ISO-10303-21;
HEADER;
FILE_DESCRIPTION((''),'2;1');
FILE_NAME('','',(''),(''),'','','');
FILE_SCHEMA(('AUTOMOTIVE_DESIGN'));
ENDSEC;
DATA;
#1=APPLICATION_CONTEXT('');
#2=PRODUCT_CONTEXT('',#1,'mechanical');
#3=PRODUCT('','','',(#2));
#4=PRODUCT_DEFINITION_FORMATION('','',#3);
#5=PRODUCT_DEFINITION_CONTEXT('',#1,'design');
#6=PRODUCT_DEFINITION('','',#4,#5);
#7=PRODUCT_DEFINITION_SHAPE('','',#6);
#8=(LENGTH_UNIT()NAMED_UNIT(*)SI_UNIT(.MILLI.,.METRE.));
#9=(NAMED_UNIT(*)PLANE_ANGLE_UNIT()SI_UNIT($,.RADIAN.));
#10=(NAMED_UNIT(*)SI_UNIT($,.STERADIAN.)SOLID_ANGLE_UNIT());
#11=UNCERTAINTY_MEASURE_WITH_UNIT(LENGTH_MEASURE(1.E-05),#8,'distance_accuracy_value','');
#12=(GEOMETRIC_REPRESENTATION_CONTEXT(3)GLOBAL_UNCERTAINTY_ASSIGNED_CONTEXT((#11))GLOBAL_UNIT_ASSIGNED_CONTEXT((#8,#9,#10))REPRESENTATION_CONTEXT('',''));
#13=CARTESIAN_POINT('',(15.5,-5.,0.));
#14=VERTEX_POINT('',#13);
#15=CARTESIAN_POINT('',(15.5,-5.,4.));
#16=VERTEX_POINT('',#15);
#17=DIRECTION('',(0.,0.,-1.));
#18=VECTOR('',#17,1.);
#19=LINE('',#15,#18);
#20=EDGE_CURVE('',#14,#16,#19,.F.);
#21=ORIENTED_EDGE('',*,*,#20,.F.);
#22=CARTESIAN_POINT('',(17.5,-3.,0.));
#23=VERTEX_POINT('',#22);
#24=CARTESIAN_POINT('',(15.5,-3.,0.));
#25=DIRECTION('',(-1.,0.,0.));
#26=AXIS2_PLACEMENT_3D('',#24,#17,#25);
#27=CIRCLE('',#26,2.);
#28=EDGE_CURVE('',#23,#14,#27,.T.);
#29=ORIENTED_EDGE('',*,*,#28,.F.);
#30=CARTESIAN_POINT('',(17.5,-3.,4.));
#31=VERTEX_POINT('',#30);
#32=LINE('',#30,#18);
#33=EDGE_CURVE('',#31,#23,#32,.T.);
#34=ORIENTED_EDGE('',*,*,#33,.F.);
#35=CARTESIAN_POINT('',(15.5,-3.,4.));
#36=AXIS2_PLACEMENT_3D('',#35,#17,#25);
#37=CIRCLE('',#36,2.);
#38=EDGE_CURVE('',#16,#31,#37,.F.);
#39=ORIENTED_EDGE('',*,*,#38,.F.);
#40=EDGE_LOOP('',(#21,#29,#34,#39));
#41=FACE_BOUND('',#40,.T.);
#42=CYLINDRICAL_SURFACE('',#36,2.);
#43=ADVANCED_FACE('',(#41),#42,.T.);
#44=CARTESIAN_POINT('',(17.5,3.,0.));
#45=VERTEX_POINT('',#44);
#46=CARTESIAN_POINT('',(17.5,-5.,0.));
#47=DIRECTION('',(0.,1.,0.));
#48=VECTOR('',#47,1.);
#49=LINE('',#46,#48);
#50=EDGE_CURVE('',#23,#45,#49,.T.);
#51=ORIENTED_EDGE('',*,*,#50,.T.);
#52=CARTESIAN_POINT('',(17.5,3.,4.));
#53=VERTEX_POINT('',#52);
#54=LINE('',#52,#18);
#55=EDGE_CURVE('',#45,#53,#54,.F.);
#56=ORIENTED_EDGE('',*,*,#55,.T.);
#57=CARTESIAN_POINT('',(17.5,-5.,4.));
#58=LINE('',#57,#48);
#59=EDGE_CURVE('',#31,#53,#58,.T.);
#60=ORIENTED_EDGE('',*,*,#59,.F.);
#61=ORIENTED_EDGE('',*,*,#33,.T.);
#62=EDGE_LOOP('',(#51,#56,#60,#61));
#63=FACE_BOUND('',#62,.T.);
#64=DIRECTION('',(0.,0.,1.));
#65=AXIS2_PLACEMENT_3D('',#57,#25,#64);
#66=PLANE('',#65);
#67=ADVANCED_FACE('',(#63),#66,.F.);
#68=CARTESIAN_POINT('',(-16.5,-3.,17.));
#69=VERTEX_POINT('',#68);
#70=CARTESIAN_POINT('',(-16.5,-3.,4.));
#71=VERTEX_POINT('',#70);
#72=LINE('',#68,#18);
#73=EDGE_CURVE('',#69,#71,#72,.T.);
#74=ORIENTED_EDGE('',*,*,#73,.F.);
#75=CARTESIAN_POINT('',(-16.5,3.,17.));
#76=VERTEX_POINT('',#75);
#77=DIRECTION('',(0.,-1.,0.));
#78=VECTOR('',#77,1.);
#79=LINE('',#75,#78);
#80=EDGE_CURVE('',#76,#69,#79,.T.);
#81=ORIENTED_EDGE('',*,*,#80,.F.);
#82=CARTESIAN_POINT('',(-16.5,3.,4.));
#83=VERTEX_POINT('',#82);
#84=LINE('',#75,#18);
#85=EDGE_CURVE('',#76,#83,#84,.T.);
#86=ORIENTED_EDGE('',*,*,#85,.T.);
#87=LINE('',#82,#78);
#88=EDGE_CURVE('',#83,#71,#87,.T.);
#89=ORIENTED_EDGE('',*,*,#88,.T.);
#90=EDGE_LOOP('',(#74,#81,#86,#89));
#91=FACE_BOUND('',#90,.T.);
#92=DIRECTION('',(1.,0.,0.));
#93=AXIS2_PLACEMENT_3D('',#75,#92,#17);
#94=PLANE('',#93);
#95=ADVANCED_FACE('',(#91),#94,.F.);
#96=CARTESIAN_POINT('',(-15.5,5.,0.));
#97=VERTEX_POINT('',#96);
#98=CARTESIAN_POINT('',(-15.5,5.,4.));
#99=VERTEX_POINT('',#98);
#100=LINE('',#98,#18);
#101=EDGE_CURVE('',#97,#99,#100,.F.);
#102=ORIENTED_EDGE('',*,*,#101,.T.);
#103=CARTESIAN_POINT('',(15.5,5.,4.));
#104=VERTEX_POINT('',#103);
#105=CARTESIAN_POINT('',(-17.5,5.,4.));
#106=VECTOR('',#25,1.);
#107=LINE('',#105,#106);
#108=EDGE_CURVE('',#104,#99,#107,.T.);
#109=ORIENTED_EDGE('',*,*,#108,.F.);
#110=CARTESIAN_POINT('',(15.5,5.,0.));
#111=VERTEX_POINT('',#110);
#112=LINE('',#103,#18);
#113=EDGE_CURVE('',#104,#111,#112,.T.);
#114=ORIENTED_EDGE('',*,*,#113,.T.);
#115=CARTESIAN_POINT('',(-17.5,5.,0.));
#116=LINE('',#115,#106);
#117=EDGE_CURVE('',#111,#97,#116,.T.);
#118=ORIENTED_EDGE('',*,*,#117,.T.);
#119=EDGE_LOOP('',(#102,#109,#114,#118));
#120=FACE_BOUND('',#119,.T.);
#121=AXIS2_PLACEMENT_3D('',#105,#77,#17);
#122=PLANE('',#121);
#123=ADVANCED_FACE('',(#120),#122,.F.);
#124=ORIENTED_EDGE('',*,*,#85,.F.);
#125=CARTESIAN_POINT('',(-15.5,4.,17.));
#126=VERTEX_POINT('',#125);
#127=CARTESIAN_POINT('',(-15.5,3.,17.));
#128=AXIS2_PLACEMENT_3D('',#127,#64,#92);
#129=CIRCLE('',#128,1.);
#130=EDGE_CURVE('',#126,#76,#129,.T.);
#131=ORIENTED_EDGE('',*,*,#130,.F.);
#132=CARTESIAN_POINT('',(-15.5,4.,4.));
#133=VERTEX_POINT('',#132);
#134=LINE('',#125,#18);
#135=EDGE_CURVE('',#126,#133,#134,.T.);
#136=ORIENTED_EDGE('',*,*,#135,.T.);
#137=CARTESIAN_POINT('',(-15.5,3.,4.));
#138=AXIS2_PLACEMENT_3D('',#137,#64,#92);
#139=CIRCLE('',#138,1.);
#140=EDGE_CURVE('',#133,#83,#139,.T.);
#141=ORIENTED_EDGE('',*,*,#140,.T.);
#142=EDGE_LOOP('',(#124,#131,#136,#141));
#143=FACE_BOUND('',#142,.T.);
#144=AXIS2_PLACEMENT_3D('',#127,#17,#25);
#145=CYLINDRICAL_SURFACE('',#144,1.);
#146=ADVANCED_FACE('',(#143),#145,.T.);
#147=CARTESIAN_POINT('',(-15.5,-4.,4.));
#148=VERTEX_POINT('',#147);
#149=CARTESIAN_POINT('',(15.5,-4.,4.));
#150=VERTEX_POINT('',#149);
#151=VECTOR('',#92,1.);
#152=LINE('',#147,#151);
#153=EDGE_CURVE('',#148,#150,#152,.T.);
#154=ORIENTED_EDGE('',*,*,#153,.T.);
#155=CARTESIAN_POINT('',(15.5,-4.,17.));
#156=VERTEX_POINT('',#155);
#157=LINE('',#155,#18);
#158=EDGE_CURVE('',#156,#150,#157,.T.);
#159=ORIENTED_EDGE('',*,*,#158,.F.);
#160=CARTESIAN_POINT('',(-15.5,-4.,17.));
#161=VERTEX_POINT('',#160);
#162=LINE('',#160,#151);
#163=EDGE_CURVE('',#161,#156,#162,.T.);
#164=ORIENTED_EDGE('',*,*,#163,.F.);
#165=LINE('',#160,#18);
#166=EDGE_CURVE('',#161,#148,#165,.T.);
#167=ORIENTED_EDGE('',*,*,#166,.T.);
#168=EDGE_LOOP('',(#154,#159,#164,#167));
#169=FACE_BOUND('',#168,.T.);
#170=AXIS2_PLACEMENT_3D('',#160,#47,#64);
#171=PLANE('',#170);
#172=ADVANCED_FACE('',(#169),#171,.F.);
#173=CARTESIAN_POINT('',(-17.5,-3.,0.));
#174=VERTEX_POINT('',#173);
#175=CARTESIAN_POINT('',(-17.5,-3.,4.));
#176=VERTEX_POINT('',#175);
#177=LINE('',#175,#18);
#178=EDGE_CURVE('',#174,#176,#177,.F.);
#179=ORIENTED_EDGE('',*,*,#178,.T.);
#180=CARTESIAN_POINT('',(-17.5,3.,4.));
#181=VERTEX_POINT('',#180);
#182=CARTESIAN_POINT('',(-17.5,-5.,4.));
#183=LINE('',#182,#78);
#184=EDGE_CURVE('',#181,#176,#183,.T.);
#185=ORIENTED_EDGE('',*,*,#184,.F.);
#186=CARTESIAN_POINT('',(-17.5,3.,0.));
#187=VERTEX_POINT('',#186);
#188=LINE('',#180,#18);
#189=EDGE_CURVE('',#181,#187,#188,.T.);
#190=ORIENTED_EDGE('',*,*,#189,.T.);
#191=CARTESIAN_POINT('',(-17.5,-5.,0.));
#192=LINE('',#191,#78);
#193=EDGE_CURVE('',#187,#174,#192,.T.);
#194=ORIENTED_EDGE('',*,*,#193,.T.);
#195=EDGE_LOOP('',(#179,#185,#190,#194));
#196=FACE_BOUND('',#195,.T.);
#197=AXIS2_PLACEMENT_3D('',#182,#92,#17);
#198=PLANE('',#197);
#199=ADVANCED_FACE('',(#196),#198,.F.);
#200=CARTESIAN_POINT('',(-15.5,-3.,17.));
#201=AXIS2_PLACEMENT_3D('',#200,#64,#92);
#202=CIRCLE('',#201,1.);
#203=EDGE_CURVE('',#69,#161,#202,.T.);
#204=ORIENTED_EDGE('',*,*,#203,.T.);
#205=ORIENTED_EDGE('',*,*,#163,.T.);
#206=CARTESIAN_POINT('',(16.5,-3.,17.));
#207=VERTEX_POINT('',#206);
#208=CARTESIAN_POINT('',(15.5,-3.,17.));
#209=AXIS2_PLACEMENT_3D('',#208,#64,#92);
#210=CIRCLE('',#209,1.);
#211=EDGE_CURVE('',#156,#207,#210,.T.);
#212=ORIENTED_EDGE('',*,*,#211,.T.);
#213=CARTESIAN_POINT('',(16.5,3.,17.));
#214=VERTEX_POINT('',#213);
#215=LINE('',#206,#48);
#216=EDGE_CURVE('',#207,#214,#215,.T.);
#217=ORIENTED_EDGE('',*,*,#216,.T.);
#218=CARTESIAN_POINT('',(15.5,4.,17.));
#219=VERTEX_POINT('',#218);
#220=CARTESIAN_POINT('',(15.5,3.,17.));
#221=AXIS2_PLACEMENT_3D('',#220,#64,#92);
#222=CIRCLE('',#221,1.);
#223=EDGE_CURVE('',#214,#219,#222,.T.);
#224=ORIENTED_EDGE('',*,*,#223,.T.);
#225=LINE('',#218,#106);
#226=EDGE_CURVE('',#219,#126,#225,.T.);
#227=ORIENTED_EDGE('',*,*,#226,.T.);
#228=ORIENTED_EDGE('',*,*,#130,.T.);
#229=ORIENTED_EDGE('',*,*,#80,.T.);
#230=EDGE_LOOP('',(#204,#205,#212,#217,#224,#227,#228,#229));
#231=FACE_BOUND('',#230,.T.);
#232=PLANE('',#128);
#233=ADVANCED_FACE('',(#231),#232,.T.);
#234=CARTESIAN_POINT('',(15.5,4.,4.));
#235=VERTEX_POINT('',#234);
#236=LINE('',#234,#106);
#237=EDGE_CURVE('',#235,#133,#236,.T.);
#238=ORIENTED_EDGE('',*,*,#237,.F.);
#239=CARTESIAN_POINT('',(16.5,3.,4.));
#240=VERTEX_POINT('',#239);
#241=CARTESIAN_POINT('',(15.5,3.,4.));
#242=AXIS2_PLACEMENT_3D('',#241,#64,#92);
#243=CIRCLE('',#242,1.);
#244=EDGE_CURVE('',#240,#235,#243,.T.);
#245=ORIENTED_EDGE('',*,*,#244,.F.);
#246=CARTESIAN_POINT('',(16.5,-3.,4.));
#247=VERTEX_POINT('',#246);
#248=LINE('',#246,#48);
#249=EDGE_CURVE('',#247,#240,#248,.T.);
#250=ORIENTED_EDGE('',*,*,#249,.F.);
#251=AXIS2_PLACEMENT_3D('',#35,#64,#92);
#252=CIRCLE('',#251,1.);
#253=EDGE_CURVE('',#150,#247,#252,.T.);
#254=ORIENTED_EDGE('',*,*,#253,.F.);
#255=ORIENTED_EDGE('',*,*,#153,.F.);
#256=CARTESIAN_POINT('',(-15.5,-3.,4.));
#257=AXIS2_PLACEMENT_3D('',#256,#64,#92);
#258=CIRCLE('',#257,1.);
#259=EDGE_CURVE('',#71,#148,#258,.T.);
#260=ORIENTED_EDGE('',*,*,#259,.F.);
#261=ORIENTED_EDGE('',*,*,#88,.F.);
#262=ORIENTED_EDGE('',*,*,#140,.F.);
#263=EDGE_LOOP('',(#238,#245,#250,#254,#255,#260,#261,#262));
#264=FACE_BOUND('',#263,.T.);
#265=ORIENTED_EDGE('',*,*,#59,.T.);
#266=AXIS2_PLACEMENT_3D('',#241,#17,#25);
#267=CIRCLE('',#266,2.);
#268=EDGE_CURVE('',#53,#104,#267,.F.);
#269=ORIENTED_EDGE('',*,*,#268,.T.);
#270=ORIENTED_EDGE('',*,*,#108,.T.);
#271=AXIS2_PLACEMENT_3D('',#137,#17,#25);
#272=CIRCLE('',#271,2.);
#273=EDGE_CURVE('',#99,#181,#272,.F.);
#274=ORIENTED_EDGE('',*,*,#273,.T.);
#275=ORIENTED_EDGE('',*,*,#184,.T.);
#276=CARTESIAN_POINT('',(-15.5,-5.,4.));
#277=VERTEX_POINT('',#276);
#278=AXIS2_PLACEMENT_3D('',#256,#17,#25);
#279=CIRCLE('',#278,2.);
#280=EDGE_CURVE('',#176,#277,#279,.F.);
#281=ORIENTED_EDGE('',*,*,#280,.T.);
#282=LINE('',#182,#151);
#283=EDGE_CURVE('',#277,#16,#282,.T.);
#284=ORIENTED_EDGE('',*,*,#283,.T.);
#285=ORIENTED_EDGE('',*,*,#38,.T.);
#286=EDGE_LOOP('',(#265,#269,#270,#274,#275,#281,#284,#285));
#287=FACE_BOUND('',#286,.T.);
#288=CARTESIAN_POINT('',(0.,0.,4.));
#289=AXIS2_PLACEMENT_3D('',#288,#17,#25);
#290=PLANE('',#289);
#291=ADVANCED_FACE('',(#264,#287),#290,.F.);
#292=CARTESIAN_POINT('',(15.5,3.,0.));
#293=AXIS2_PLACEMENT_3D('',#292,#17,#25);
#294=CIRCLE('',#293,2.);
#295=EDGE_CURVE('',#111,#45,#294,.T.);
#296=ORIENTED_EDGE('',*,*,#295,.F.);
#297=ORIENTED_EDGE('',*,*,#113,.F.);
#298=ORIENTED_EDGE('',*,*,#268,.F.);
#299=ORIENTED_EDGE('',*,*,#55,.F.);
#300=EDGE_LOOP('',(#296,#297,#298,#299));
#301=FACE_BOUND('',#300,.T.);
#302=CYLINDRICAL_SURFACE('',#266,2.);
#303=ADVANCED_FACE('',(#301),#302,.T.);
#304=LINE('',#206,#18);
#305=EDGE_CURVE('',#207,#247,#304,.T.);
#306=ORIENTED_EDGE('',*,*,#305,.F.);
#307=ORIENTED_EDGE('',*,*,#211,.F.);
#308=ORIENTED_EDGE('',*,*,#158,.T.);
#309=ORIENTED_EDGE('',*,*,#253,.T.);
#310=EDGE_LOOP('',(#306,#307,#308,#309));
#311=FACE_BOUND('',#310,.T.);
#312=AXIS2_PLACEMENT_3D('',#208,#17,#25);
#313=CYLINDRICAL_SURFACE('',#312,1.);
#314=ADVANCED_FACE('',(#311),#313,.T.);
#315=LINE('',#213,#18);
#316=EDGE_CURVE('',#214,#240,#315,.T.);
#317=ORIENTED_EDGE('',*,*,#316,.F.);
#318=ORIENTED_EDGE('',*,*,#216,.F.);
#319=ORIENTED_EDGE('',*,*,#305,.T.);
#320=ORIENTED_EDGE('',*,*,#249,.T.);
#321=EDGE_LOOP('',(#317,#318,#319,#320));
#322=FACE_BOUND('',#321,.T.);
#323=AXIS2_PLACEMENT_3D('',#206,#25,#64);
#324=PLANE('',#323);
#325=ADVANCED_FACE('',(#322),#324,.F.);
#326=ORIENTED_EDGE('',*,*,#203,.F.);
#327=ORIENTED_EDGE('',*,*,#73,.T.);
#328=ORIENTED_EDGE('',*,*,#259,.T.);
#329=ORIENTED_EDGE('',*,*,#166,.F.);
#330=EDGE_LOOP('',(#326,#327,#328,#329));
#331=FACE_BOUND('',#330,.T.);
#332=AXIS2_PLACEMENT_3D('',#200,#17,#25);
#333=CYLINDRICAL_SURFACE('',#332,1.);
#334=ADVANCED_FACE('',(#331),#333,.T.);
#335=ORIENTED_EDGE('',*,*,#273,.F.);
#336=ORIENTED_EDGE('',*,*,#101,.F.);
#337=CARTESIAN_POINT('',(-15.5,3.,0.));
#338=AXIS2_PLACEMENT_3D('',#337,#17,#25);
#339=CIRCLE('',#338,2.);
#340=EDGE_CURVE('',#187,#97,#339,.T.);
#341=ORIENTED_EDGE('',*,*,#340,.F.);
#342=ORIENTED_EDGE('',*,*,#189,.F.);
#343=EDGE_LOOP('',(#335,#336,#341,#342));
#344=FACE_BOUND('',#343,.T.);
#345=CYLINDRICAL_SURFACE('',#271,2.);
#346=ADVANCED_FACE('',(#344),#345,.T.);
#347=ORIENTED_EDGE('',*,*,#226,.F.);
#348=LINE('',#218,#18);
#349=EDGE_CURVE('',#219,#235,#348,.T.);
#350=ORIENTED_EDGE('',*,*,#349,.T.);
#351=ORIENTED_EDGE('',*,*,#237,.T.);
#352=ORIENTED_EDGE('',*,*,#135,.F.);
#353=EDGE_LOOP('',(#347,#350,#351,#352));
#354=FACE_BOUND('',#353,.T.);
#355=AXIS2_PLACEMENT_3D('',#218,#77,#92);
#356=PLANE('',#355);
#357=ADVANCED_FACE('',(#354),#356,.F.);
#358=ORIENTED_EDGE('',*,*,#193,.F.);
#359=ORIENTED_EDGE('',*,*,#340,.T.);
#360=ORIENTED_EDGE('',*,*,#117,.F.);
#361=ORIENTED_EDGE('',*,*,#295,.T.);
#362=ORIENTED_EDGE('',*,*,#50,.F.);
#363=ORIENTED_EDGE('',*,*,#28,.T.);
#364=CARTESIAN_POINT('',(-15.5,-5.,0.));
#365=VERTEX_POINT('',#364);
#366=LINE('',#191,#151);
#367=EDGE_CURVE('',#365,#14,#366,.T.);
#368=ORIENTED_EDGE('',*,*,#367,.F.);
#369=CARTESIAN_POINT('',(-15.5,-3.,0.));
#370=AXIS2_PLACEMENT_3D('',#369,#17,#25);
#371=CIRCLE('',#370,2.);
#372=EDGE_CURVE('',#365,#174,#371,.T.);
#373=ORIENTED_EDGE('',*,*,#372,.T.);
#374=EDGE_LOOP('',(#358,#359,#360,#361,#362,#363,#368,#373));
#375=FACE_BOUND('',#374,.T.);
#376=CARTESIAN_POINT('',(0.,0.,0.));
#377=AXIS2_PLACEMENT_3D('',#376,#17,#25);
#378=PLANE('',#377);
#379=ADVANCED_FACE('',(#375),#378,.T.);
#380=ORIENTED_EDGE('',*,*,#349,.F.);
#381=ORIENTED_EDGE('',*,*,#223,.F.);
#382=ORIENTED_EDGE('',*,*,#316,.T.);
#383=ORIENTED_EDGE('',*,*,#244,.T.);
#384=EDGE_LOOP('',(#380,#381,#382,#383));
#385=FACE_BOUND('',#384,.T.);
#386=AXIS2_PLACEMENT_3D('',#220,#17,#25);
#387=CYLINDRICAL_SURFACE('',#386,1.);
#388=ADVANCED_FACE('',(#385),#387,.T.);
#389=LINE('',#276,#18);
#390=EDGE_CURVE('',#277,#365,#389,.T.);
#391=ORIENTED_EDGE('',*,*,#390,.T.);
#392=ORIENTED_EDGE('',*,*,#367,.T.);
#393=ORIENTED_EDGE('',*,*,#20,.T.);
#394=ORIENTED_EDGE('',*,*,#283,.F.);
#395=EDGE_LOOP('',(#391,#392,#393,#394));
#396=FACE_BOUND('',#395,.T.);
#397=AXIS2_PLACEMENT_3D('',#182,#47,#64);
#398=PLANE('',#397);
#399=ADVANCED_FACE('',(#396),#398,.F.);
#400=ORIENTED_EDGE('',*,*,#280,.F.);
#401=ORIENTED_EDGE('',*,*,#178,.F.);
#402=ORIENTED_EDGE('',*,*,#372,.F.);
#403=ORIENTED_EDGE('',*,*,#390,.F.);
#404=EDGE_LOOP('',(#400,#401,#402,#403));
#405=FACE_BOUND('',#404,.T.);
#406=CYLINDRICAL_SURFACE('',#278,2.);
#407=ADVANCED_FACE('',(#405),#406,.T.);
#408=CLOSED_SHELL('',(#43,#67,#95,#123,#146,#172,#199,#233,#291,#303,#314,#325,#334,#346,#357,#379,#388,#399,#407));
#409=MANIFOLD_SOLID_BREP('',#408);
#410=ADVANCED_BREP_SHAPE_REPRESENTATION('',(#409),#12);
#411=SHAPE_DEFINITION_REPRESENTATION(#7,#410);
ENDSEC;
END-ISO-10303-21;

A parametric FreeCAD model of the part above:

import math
import FreeCAD as App
import Part
import Sketcher
from FreeCAD import Vector
Q = App.Units.Quantity


def edges_at(feature, points):
    """Names of the edges that pass closest to the given points."""
    edges = feature.Shape.Edges
    near = lambda p: min(range(len(edges)), key=lambda i: edges[i].distToShape(Part.Vertex(*p))[0])
    return sorted({f"Edge{near(p) + 1}" for p in points})


def add_polygon(sketch, points):
    """Adds a closed chain of lines whose ends are joined by coincident constraints."""
    first, n = sketch.GeometryCount, len(points)
    for a, b in zip(points, points[1:] + points[:1]):
        sketch.addGeometry(Part.LineSegment(App.Vector(*a, 0), App.Vector(*b, 0)), False)
    for i in range(n):
        sketch.addConstraint(Sketcher.Constraint("Coincident", first + i, 2, first + (i + 1) % n, 1))

doc = App.newDocument("Part")
body = doc.addObject("PartDesign::Body", "Body")

# Sketch on XY plane
sketch1 = body.newObject("Sketcher::SketchObject", "Sketch")
sketch1.AttachmentSupport = (doc.getObject("XY_Plane"), [""])
sketch1.MapMode = "FlatFace"
add_polygon(sketch1, [(-18, 5), (-18, -5), (18, -5), (18, 5)])  # lines 0-3
sketch1.addConstraint([
    Sketcher.Constraint("Vertical", 0),
    Sketcher.Constraint("Horizontal", 1),
    Sketcher.Constraint("Vertical", 2),
    Sketcher.Constraint("Horizontal", 3),
    Sketcher.Constraint("Symmetric", 0, 2, 2, 2, -1, 1),
    Sketcher.Constraint("DistanceX", 1, 1, 1, 2, Q("35 mm")),
    Sketcher.Constraint("DistanceY", 0, 2, 0, 1, Q("10 mm")),
])
pad1 = body.newObject("PartDesign::Pad", "Pad")
pad1.Profile = sketch1
pad1.Length = 4
doc.recompute()

fillet = body.newObject("PartDesign::Fillet", "Fillet")
fillet.Base = (pad1, edges_at(pad1, [
    (17.5, -5, 2),
    (-17.5, -5, 2),
    (-17.5, 5, 2),
    (17.5, 5, 2),
]))
fillet.Radius = 2

# Sketch on XY plane
sketch2 = body.newObject("Sketcher::SketchObject", "Sketch001")
sketch2.AttachmentSupport = (doc.getObject("XY_Plane"), [""])
sketch2.MapMode = "FlatFace"
sketch2.AttachmentOffset = App.Placement(Vector(0, 0, 4), App.Rotation())
sketch2.addGeometry([
    Part.LineSegment(Vector(-16.5, 3, 0), Vector(-16.5, -3, 0)),  # 0
    Part.ArcOfCircle(Part.Circle(Vector(-15.5, -3, 0), Vector(0, 0, 1), 1), math.radians(-180), math.radians(-90)),  # 1
    Part.LineSegment(Vector(-15.5, -4, 0), Vector(15.5, -4, 0)),  # 2
    Part.ArcOfCircle(Part.Circle(Vector(15.5, -3, 0), Vector(0, 0, 1), 1), math.radians(-90), math.radians(0)),  # 3
    Part.LineSegment(Vector(16.5, -3, 0), Vector(16.5, 3, 0)),  # 4
    Part.ArcOfCircle(Part.Circle(Vector(15.5, 3, 0), Vector(0, 0, 1), 1), math.radians(0), math.radians(90)),  # 5
    Part.LineSegment(Vector(15.5, 4, 0), Vector(-15.5, 4, 0)),  # 6
    Part.ArcOfCircle(Part.Circle(Vector(-15.5, 3, 0), Vector(0, 0, 1), 1), math.radians(90), math.radians(180)),  # 7
], False)
sketch2.addConstraint([
    Sketcher.Constraint("Tangent", 0, 2, 1, 1),
    Sketcher.Constraint("Tangent", 1, 2, 2, 1),
    Sketcher.Constraint("Tangent", 2, 2, 3, 1),
    Sketcher.Constraint("Tangent", 3, 2, 4, 1),
    Sketcher.Constraint("Tangent", 4, 2, 5, 1),
    Sketcher.Constraint("Tangent", 5, 2, 6, 1),
    Sketcher.Constraint("Tangent", 6, 2, 7, 1),
    Sketcher.Constraint("Tangent", 7, 2, 0, 1),
    Sketcher.Constraint("Vertical", 0),
    Sketcher.Constraint("Horizontal", 2),
    Sketcher.Constraint("Vertical", 4),
    Sketcher.Constraint("Horizontal", 6),
    Sketcher.Constraint("Equal", 1, 3),
    Sketcher.Constraint("Equal", 3, 5),
    Sketcher.Constraint("Equal", 5, 7),
    Sketcher.Constraint("Symmetric", 1, 3, 5, 3, -1, 1),
    Sketcher.Constraint("Radius", 1, Q("1 mm")),
    Sketcher.Constraint("DistanceX", 2, 1, 2, 2, Q("31 mm")),
    Sketcher.Constraint("DistanceY", 0, 2, 0, 1, Q("6 mm")),
])
pad2 = body.newObject("PartDesign::Pad", "Pad001")
pad2.Profile = sketch2
pad2.Length = 13

doc.recompute()
